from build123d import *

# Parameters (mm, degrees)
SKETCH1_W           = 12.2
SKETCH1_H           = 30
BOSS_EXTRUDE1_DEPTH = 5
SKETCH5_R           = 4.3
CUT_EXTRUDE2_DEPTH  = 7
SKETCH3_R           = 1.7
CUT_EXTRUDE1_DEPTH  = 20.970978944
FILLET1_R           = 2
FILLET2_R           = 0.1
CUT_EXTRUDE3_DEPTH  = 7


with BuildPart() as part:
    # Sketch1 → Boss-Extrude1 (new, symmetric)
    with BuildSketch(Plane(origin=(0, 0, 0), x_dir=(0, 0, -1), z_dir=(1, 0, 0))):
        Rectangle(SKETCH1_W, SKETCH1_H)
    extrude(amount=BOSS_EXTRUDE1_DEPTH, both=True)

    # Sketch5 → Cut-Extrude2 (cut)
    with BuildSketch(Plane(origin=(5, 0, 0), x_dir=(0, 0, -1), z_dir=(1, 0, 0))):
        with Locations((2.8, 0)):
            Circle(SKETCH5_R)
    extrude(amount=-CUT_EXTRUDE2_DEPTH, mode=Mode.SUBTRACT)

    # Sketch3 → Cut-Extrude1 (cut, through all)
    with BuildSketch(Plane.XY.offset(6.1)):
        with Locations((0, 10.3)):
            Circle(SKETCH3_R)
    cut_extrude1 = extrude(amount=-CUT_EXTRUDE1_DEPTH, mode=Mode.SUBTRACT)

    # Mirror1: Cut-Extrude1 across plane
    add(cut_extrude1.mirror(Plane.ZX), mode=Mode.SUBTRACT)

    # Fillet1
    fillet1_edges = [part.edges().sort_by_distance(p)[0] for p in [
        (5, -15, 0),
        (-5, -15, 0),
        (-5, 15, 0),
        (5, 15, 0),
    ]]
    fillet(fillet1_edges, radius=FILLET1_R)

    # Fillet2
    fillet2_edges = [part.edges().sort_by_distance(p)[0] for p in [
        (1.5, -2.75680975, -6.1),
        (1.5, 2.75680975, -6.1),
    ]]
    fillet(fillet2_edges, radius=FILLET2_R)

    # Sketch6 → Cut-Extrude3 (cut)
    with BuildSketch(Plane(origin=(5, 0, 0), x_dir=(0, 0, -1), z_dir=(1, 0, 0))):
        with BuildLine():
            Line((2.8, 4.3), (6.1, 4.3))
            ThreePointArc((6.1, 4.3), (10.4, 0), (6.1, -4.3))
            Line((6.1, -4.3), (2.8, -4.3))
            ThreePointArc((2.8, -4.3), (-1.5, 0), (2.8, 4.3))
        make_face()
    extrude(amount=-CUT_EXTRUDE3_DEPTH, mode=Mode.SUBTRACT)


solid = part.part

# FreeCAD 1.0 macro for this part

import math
import FreeCAD as App
import Part
import Sketcher
Q = App.Units.Quantity


def edges_at(feature, points):
    """Names of the edges that pass closest to the given points."""
    edges = feature.Shape.Edges
    near = lambda p: min(range(len(edges)), key=lambda i: edges[i].distToShape(Part.Vertex(*p))[0])
    return sorted({f"Edge{near(p) + 1}" for p in points})


def add_polygon(sketch, points):
    """Adds a closed chain of lines whose ends are joined by coincident constraints."""
    first, n = sketch.GeometryCount, len(points)
    for a, b in zip(points, points[1:] + points[:1]):
        sketch.addGeometry(Part.LineSegment(App.Vector(*a, 0), App.Vector(*b, 0)), False)
    for i in range(n):
        sketch.addConstraint(Sketcher.Constraint("Coincident", first + i, 2, first + (i + 1) % n, 1))

doc = App.newDocument("Part")
body = doc.addObject("PartDesign::Body", "Body")

# Sketch on YZ plane
sketch1 = doc.addObject("Sketcher::SketchObject", "Sketch")
body.addObject(sketch1)
sketch1.AttachmentSupport = (doc.YZ_Plane, [""])
sketch1.MapMode = "FlatFace"
add_polygon(sketch1, [(15, 6), (-15, 6), (-15, -6), (15, -6)])  # lines 0-3
sketch1.addConstraint([
    Sketcher.Constraint("Horizontal", 0),
    Sketcher.Constraint("Vertical", 1),
    Sketcher.Constraint("Horizontal", 2),
    Sketcher.Constraint("Vertical", 3),
    Sketcher.Constraint("Symmetric", 0, 2, 2, 2, -1, 1),
    Sketcher.Constraint("DistanceX", 0, 2, 0, 1, Q("30 mm")),
    Sketcher.Constraint("DistanceY", 1, 2, 1, 1, Q("12.2 mm")),
])
pad1 = doc.addObject("PartDesign::Pad", "Pad")
body.addObject(pad1)
pad1.Profile = sketch1
pad1.Length = 10
pad1.Midplane = True

# Sketch on YZ plane
sketch2 = doc.addObject("Sketcher::SketchObject", "Sketch001")
body.addObject(sketch2)
sketch2.AttachmentSupport = (doc.YZ_Plane, [""])
sketch2.MapMode = "FlatFace"
sketch2.AttachmentOffset = App.Placement(App.Vector(0, 0, 5), App.Rotation())
sketch2.addGeometry(Part.Circle(App.Vector(0, -2.8, 0), App.Vector(0, 0, 1), 4.3), False)
sketch2.addConstraint([
    Sketcher.Constraint("PointOnObject", 0, 3, -2),
    Sketcher.Constraint("Diameter", 0, Q("8.6 mm")),
    Sketcher.Constraint("DistanceY", 0, 3, -1, 1, Q("2.8 mm")),
])
pocket1 = doc.addObject("PartDesign::Pocket", "Pocket")
body.addObject(pocket1)
pocket1.Profile = sketch2
pocket1.Length = 7

# Sketch on XY plane
sketch3 = doc.addObject("Sketcher::SketchObject", "Sketch002")
body.addObject(sketch3)
sketch3.AttachmentSupport = (doc.XY_Plane, [""])
sketch3.MapMode = "FlatFace"
sketch3.AttachmentOffset = App.Placement(App.Vector(0, 0, 6.1), App.Rotation())
sketch3.addGeometry(Part.Circle(App.Vector(0, 10.3, 0), App.Vector(0, 0, 1), 1.7), False)
sketch3.addConstraint([
    Sketcher.Constraint("PointOnObject", 0, 3, -2),
    Sketcher.Constraint("Diameter", 0, Q("3.4 mm")),
    Sketcher.Constraint("DistanceY", -1, 1, 0, 3, Q("10.3 mm")),
])
pocket2 = doc.addObject("PartDesign::Pocket", "Pocket001")
body.addObject(pocket2)
pocket2.Profile = sketch3
pocket2.Type = "ThroughAll"
doc.recompute()

mirrored = doc.addObject("PartDesign::Mirrored", "Mirrored")
body.addObject(mirrored)
mirrored.Originals = [pocket2]
mirrored.MirrorPlane = (doc.XZ_Plane, [""])
body.Tip = mirrored
doc.recompute()

fillet = doc.addObject("PartDesign::Fillet", "Fillet")
body.addObject(fillet)
fillet.Base = (mirrored, edges_at(mirrored, [
    (5, -15, 0),
    (-5, -15, 0),
    (-5, 15, 0),
    (5, 15, 0),
]))
fillet.Radius = 2
doc.recompute()

fillet2 = doc.addObject("PartDesign::Fillet", "Fillet001")
body.addObject(fillet2)
fillet2.Base = (fillet, edges_at(fillet, [(1.5, -2.757, -6.1), (1.5, 2.757, -6.1)]))
fillet2.Radius = 0.1

# Sketch on YZ plane
sketch4 = doc.addObject("Sketcher::SketchObject", "Sketch003")
body.addObject(sketch4)
sketch4.AttachmentSupport = (doc.YZ_Plane, [""])
sketch4.MapMode = "FlatFace"
sketch4.AttachmentOffset = App.Placement(App.Vector(0, 0, 5), App.Rotation())
sketch4.addGeometry([
    Part.LineSegment(App.Vector(4.3, -6.1, 0), App.Vector(4.3, -2.8, 0)),
    Part.ArcOfCircle(Part.Circle(App.Vector(0, -2.8, 0), App.Vector(0, 0, 1), 4.3), math.radians(0), math.radians(180)),
    Part.LineSegment(App.Vector(-4.3, -2.8, 0), App.Vector(-4.3, -6.1, 0)),
    Part.ArcOfCircle(Part.Circle(App.Vector(0, -6.1, 0), App.Vector(0, 0, 1), 4.3), math.radians(180), math.radians(360)),
], False)
sketch4.addConstraint([
    Sketcher.Constraint("Tangent", 0, 2, 1, 1),
    Sketcher.Constraint("Tangent", 1, 2, 2, 1),
    Sketcher.Constraint("Tangent", 2, 2, 3, 1),
    Sketcher.Constraint("Tangent", 3, 2, 0, 1),
    Sketcher.Constraint("Vertical", 0),
    Sketcher.Constraint("Vertical", 2),
    Sketcher.Constraint("PointOnObject", 1, 3, -2),
    Sketcher.Constraint("Radius", 1, Q("4.3 mm")),
    Sketcher.Constraint("DistanceY", 0, 1, 0, 2, Q("3.3 mm")),
    Sketcher.Constraint("DistanceY", 1, 3, -1, 1, Q("2.8 mm")),
])
pocket3 = doc.addObject("PartDesign::Pocket", "Pocket002")
body.addObject(pocket3)
pocket3.Profile = sketch4
pocket3.Length = 7

doc.recompute()
